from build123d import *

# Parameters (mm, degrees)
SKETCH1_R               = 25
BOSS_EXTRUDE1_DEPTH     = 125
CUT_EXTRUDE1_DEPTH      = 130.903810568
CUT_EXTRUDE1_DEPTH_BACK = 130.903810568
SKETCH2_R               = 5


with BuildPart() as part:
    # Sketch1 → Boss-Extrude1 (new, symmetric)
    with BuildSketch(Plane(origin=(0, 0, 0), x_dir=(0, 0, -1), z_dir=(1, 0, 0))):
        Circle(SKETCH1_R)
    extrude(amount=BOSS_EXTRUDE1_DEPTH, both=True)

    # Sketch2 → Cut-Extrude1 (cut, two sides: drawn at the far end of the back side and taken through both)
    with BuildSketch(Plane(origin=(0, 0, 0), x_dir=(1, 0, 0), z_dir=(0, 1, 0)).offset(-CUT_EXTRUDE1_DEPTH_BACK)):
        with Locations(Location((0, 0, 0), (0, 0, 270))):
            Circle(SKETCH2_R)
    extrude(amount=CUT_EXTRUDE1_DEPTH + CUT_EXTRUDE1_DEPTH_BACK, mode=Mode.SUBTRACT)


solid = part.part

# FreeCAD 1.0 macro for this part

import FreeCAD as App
import Part
import Sketcher
from FreeCAD import Vector
Q = App.Units.Quantity

doc = App.newDocument("Part")
body = doc.addObject("PartDesign::Body", "Body")

# Sketch on YZ plane
sketch1 = body.newObject("Sketcher::SketchObject", "Sketch")
sketch1.AttachmentSupport = (doc.getObject("YZ_Plane"), [""])
sketch1.MapMode = "FlatFace"
sketch1.addGeometry(Part.Circle(Vector(0, 0, 0), Vector(0, 0, 1), 25), False)
sketch1.addConstraint([
    Sketcher.Constraint("Coincident", 0, 3, -1, 1),
    Sketcher.Constraint("Diameter", 0, Q("50 mm")),
])
pad1 = body.newObject("PartDesign::Pad", "Pad")
pad1.Profile = sketch1
pad1.Length = 250
pad1.Midplane = True

# Sketch on XZ plane
sketch2 = body.newObject("Sketcher::SketchObject", "Sketch001")
sketch2.AttachmentSupport = (doc.getObject("XZ_Plane"), [""])
sketch2.MapMode = "FlatFace"
sketch2.addGeometry(Part.Circle(Vector(0, 0, 0), Vector(0, 0, 1), 5), False)
sketch2.addConstraint([
    Sketcher.Constraint("Coincident", 0, 3, -1, 1),
    Sketcher.Constraint("Diameter", 0, Q("10 mm")),
])
pocket1 = body.newObject("PartDesign::Pocket", "Pocket")
pocket1.Profile = sketch2
pocket1.Type = "ThroughAll"
pocket1.Midplane = True

doc.recompute()
